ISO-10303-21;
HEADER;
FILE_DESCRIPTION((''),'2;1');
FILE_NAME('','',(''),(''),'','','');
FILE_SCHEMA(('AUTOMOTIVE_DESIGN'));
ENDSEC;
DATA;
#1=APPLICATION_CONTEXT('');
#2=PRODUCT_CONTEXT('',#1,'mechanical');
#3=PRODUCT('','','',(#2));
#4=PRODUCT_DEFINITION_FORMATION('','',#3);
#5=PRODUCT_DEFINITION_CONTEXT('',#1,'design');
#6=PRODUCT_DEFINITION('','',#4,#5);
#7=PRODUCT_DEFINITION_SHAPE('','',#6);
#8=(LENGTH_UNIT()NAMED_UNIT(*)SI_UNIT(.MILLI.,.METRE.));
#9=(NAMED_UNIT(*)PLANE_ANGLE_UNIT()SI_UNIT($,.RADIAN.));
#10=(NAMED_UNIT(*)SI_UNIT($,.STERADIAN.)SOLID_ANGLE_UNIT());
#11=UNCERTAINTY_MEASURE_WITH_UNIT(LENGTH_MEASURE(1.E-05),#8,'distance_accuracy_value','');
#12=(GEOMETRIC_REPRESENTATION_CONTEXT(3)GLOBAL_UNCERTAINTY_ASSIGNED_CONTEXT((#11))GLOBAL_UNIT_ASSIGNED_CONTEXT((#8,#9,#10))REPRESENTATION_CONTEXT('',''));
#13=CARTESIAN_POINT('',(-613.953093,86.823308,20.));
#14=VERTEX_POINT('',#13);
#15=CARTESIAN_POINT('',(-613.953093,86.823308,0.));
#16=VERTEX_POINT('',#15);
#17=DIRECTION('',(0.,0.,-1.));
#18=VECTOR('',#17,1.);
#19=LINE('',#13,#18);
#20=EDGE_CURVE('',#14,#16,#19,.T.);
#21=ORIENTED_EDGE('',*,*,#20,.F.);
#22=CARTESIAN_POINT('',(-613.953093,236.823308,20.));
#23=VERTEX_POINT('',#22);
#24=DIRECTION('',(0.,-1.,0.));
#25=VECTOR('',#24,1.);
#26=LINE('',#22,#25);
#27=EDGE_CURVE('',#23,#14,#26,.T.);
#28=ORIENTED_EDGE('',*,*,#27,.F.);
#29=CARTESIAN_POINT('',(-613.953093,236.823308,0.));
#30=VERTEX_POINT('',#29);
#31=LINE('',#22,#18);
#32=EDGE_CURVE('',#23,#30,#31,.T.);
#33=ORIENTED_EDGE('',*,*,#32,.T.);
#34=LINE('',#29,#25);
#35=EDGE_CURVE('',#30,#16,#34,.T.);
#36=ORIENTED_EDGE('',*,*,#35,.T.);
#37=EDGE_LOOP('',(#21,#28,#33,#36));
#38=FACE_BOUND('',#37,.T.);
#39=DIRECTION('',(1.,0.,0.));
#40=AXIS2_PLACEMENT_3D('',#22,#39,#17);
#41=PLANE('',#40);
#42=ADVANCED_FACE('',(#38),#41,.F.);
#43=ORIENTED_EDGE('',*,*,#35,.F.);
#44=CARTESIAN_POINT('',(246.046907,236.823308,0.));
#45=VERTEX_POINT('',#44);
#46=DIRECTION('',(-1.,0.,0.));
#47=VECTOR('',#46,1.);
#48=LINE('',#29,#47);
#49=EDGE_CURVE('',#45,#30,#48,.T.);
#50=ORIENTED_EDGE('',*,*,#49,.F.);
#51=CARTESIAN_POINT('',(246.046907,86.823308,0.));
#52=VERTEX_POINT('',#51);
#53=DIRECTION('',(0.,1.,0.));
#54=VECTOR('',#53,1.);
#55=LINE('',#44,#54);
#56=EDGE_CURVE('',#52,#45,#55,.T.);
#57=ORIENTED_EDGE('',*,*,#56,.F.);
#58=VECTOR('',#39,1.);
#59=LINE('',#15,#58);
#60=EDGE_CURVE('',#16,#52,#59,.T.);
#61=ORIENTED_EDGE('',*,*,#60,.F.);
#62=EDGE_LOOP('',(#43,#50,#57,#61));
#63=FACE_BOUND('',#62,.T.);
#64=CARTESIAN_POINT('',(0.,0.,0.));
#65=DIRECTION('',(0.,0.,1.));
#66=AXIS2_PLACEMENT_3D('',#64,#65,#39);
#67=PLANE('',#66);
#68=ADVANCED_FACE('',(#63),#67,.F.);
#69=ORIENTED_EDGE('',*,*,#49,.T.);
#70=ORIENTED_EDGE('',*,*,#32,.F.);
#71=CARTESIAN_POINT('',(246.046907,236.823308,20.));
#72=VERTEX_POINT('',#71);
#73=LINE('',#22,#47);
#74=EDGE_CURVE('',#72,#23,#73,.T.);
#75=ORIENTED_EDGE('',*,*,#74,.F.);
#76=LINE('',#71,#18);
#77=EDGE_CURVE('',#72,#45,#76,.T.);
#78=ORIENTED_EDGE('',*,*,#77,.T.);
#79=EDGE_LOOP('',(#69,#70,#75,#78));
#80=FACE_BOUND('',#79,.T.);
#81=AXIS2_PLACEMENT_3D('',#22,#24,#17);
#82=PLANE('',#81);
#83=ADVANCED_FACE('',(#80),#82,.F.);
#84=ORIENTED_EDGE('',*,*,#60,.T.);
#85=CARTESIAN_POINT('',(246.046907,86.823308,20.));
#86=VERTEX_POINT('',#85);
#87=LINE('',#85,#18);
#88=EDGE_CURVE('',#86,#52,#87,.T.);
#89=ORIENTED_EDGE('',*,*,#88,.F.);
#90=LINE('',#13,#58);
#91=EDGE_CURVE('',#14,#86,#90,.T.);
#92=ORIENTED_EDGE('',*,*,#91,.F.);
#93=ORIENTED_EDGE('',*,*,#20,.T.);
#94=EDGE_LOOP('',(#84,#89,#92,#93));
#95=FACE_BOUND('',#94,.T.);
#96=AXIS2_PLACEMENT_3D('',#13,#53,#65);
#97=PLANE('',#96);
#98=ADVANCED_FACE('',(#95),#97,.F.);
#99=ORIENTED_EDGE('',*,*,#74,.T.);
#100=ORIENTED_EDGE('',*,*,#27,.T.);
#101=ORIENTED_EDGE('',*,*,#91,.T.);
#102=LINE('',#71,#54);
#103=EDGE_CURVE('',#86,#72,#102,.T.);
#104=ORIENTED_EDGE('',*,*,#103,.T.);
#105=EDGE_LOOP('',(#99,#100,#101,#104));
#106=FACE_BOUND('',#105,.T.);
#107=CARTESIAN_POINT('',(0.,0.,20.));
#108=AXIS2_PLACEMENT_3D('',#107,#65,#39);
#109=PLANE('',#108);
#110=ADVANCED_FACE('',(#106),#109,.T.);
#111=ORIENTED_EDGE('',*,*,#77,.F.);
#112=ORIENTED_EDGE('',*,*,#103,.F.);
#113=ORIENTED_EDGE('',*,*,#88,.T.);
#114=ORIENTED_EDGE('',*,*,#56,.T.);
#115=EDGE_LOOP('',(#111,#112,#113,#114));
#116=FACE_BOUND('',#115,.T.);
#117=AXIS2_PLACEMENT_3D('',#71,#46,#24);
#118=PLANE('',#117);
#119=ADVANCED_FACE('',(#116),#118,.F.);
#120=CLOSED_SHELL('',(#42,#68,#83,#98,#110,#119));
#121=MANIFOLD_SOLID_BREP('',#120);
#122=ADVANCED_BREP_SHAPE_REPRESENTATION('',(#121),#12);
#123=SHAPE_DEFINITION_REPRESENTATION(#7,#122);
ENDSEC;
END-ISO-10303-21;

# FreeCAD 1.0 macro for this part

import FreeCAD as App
import Part
import Sketcher

V = App.Vector
Q = App.Units.Quantity

doc = App.newDocument("Part")
body = doc.addObject("PartDesign::Body", "Body")

# Sketch on XY plane
sketch1 = body.newObject("Sketcher::SketchObject", "Sketch")
sketch1.AttachmentSupport = (doc.getObject("XY_Plane"), [""])
sketch1.MapMode = "FlatFace"
sketch1.addGeometry([
    Part.LineSegment(V(-614, 237, 0), V(-614, 87, 0)),
    Part.LineSegment(V(-614, 87, 0), V(246, 87, 0)),
    Part.LineSegment(V(246, 87, 0), V(246, 237, 0)),
    Part.LineSegment(V(246, 237, 0), V(-614, 237, 0)),
], False)
sketch1.addConstraint([
    Sketcher.Constraint("Coincident", 0, 2, 1, 1),
    Sketcher.Constraint("Coincident", 1, 2, 2, 1),
    Sketcher.Constraint("Coincident", 2, 2, 3, 1),
    Sketcher.Constraint("Coincident", 3, 2, 0, 1),
    Sketcher.Constraint("Vertical", 0),
    Sketcher.Constraint("Horizontal", 1),
    Sketcher.Constraint("Vertical", 2),
    Sketcher.Constraint("Horizontal", 3),
    Sketcher.Constraint("DistanceX", 1, 1, 1, 2, Q("860 mm")),
    Sketcher.Constraint("DistanceY", 0, 2, 0, 1, Q("150 mm")),
    Sketcher.Constraint("DistanceY", -1, 1, 0, 2, Q("86.823308 mm")),
    Sketcher.Constraint("DistanceX", 0, 2, -1, 1, Q("613.953093 mm")),
])
pad1 = body.newObject("PartDesign::Pad", "Pad")
pad1.Profile = sketch1
pad1.Length = 20

doc.recompute()
